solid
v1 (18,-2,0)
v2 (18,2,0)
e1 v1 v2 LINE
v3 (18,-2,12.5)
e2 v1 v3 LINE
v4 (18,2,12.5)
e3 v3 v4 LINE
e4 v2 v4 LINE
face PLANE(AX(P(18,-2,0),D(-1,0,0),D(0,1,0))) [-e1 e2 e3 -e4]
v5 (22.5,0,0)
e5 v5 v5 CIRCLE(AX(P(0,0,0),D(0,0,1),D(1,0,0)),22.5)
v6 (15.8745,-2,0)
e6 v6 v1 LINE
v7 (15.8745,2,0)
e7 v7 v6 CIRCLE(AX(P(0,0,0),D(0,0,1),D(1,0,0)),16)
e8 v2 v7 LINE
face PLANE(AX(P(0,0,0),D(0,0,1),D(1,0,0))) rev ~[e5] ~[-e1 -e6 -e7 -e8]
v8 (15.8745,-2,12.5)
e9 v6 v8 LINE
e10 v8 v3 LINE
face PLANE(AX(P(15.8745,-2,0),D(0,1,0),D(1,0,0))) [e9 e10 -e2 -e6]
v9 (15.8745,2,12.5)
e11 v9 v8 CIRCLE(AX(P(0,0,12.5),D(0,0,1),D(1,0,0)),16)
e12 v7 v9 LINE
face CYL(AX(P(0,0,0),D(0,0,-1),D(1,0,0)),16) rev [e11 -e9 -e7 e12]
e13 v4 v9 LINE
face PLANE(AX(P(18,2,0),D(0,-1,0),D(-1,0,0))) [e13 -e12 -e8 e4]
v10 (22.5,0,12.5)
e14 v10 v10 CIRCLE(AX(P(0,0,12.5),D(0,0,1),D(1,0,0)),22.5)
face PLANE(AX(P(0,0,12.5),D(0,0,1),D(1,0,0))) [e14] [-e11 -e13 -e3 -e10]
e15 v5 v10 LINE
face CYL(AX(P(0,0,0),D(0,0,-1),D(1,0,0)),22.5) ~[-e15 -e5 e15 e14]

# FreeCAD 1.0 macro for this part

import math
import FreeCAD as App
import Part
import Sketcher
Q = App.Units.Quantity

doc = App.newDocument("Part")
body = doc.addObject("PartDesign::Body", "Body")

# Sketch on XY plane
sketch1 = body.newObject("Sketcher::SketchObject", "Sketch")
sketch1.AttachmentSupport = (doc.getObject("XY_Plane"), [""])
sketch1.MapMode = "FlatFace"
sketch1.addGeometry(Part.Circle(App.Vector(0, 0, 0), App.Vector(0, 0, 1), 22.5), False)
sketch1.addGeometry(Part.ArcOfCircle(Part.Circle(App.Vector(0, 0, 0), App.Vector(0, 0, 1), 16), math.radians(7), math.radians(353)), False)
sketch1.addGeometry(Part.LineSegment(App.Vector(15.9, 2, 0), App.Vector(18, 2, 0)), False)
sketch1.addGeometry(Part.LineSegment(App.Vector(18, 2, 0), App.Vector(18, -2, 0)), False)
sketch1.addGeometry(Part.LineSegment(App.Vector(18, -2, 0), App.Vector(15.9, -2, 0)), False)
sketch1.addConstraint(Sketcher.Constraint("Coincident", 1, 1, 2, 1))
sketch1.addConstraint(Sketcher.Constraint("Coincident", 2, 2, 3, 1))
sketch1.addConstraint(Sketcher.Constraint("Coincident", 3, 2, 4, 1))
sketch1.addConstraint(Sketcher.Constraint("Coincident", 4, 2, 1, 2))
sketch1.addConstraint(Sketcher.Constraint("Horizontal", 2))
sketch1.addConstraint(Sketcher.Constraint("Vertical", 3))
sketch1.addConstraint(Sketcher.Constraint("Horizontal", 4))
sketch1.addConstraint(Sketcher.Constraint("Coincident", 0, 3, -1, 1))
sketch1.addConstraint(Sketcher.Constraint("Coincident", 1, 3, -1, 1))
sketch1.addConstraint(Sketcher.Constraint("Vertical", 1, 1, 4, 2))
sketch1.addConstraint(Sketcher.Constraint("Radius", 1, Q("16 mm")))
sketch1.addConstraint(Sketcher.Constraint("Diameter", 0, Q("45 mm")))
sketch1.addConstraint(Sketcher.Constraint("DistanceY", 3, 2, 3, 1, Q("4 mm")))
sketch1.addConstraint(Sketcher.Constraint("DistanceX", -1, 1, 2, 2, Q("18 mm")))
pad1 = body.newObject("PartDesign::Pad", "Pad")
pad1.Profile = sketch1
pad1.Length = 12.5

doc.recompute()
